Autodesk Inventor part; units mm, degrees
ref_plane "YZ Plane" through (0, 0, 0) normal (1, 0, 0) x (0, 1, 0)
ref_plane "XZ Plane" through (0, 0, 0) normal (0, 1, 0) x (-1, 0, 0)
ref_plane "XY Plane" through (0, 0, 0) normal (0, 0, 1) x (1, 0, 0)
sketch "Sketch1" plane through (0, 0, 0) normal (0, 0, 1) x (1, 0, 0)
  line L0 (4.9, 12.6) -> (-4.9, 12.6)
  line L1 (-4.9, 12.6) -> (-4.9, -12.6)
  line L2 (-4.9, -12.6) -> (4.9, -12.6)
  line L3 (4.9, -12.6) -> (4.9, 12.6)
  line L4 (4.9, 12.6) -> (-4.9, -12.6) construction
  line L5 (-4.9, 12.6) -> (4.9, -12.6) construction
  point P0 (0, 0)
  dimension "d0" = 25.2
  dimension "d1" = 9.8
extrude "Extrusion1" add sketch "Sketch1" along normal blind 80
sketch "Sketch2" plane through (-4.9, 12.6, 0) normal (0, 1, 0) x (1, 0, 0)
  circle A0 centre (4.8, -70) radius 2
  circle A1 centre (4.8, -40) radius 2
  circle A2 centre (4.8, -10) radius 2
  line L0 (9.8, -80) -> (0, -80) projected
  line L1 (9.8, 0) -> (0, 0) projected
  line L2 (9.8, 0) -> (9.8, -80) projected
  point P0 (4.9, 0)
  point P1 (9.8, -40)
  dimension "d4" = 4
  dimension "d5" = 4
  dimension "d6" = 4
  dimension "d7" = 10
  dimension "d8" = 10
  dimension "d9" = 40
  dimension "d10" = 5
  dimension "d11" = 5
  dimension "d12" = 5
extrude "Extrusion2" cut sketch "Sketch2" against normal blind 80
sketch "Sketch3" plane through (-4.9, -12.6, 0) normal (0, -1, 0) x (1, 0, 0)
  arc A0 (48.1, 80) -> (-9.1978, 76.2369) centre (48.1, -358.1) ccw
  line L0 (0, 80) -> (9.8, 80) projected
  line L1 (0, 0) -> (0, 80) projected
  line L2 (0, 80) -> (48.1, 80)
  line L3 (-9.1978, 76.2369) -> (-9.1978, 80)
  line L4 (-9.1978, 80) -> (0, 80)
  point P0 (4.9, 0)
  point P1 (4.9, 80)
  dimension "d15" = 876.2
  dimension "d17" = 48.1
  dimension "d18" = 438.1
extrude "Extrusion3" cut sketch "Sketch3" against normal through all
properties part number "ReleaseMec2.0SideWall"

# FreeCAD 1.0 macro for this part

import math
import FreeCAD as App
import Part
import Sketcher
Q = App.Units.Quantity

doc = App.newDocument("Part")
body = doc.addObject("PartDesign::Body", "Body")

sketch1 = body.newObject("Sketcher::SketchObject", "Sketch")
sketch1.AttachmentSupport = (doc.getObject("XY_Plane"), [""])
sketch1.MapMode = "FlatFace"
sketch1.addGeometry([
    Part.LineSegment(App.Vector(4.9, -12.6, 0), App.Vector(4.9, 12.6, 0)),
    Part.LineSegment(App.Vector(4.9, 12.6, 0), App.Vector(-4.9, 12.6, 0)),
    Part.LineSegment(App.Vector(-4.9, 12.6, 0), App.Vector(-4.9, -12.6, 0)),
    Part.LineSegment(App.Vector(-4.9, -12.6, 0), App.Vector(4.9, -12.6, 0)),
], False)
sketch1.addConstraint([
    Sketcher.Constraint("Coincident", 0, 2, 1, 1),
    Sketcher.Constraint("Coincident", 1, 2, 2, 1),
    Sketcher.Constraint("Coincident", 2, 2, 3, 1),
    Sketcher.Constraint("Coincident", 3, 2, 0, 1),
    Sketcher.Constraint("Vertical", 0),
    Sketcher.Constraint("Horizontal", 1),
    Sketcher.Constraint("Vertical", 2),
    Sketcher.Constraint("Horizontal", 3),
    Sketcher.Constraint("Symmetric", 0, 2, 2, 2, -1, 1),
    Sketcher.Constraint("DistanceX", 1, 2, 1, 1, Q("9.8 mm")),
    Sketcher.Constraint("DistanceY", 0, 1, 0, 2, Q("25.2 mm")),
])
pad1 = body.newObject("PartDesign::Pad", "Pad")
pad1.Profile = sketch1
pad1.Length = 80

sketch2 = body.newObject("Sketcher::SketchObject", "Sketch001")
sketch2.AttachmentSupport = (doc.getObject("XZ_Plane"), [""])
sketch2.MapMode = "FlatFace"
sketch2.AttachmentOffset = App.Placement(App.Vector(0, 0, -12.6), App.Rotation())
sketch2.addGeometry([
    Part.Circle(App.Vector(-0.1, 70, 0), App.Vector(0, 0, 1), 2),
    Part.Circle(App.Vector(-0.1, 40, 0), App.Vector(0, 0, 1), 2),
    Part.Circle(App.Vector(-0.1, 10, 0), App.Vector(0, 0, 1), 2),
], False)
sketch2.addConstraint([
    Sketcher.Constraint("Equal", 0, 1),
    Sketcher.Constraint("Equal", 1, 2),
    Sketcher.Constraint("Vertical", 0, 3, 1, 3),
    Sketcher.Constraint("Vertical", 1, 3, 2, 3),
    Sketcher.Constraint("Diameter", 0, Q("4 mm")),
    Sketcher.Constraint("DistanceY", -1, 1, 1, 3, Q("40 mm")),
    Sketcher.Constraint("DistanceY", -1, 1, 2, 3, Q("10 mm")),
    Sketcher.Constraint("DistanceY", -1, 1, 0, 3, Q("70 mm")),
    Sketcher.Constraint("DistanceX", 0, 3, -1, 1, Q("0.1 mm")),
])
pocket1 = body.newObject("PartDesign::Pocket", "Pocket")
pocket1.Profile = sketch2
pocket1.Length = 80
pocket1.Reversed = True

sketch3 = body.newObject("Sketcher::SketchObject", "Sketch002")
sketch3.AttachmentSupport = (doc.getObject("XZ_Plane"), [""])
sketch3.MapMode = "FlatFace"
sketch3.AttachmentOffset = App.Placement(App.Vector(0, 0, 12.6), App.Rotation())
sketch3.addGeometry([
    Part.LineSegment(App.Vector(43.2, 80, 0), App.Vector(-14.0978, 80, 0)),
    Part.LineSegment(App.Vector(-14.0978, 80, 0), App.Vector(-14.0978, 76.2369, 0)),
    Part.ArcOfCircle(Part.Circle(App.Vector(43.199744, -358.092192, 0), App.Vector(0, 0, 1), 438.092192), math.radians(89.999967), math.radians(97.515175)),
], False)
sketch3.addConstraint([
    Sketcher.Constraint("Coincident", 0, 2, 1, 1),
    Sketcher.Constraint("Coincident", 1, 2, 2, 2),
    Sketcher.Constraint("Tangent", 2, 1, 0, 1),
    Sketcher.Constraint("Horizontal", 0),
    Sketcher.Constraint("Vertical", 1),
    Sketcher.Constraint("DistanceY", -1, 1, 0, 2, Q("80 mm")),
    Sketcher.Constraint("Radius", 2, Q("438.0922 mm")),
    Sketcher.Constraint("DistanceY", 1, 2, 1, 1, Q("3.763 mm")),
    Sketcher.Constraint("DistanceX", -1, 1, 2, 3, Q("43.1997 mm")),
])
pocket2 = body.newObject("PartDesign::Pocket", "Pocket001")
pocket2.Profile = sketch3
pocket2.Type = "ThroughAll"

doc.recompute()
